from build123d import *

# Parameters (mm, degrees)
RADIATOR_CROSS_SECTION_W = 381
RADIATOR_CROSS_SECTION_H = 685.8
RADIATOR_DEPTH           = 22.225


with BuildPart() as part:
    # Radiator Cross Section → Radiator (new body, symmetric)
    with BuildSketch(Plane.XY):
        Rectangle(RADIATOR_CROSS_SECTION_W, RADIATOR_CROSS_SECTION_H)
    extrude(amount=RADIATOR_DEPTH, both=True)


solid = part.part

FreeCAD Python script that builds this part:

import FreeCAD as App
import Part
import Sketcher
from FreeCAD import Vector
Q = App.Units.Quantity


def add_polygon(sketch, points):
    """Adds a closed chain of lines whose ends are joined by coincident constraints."""
    first, n = sketch.GeometryCount, len(points)
    for a, b in zip(points, points[1:] + points[:1]):
        sketch.addGeometry(Part.LineSegment(App.Vector(*a, 0), App.Vector(*b, 0)), False)
    for i in range(n):
        sketch.addConstraint(Sketcher.Constraint("Coincident", first + i, 2, first + (i + 1) % n, 1))

doc = App.newDocument("Part")
body = doc.addObject("PartDesign::Body", "Body")

# Sketch on XY plane
sketch1 = body.newObject("Sketcher::SketchObject", "Sketch")
sketch1.AttachmentSupport = (doc.getObject("XY_Plane"), [""])
sketch1.MapMode = "FlatFace"
add_polygon(sketch1, [(-190, 343), (-190, -343), (190, -343), (190, 343)])  # lines 0-3
sketch1.addConstraint([
    Sketcher.Constraint("Vertical", 0),
    Sketcher.Constraint("Horizontal", 1),
    Sketcher.Constraint("Vertical", 2),
    Sketcher.Constraint("Horizontal", 3),
    Sketcher.Constraint("Symmetric", 0, 2, 2, 2, -1, 1),
    Sketcher.Constraint("DistanceX", 1, 1, 1, 2, Q("15 in")),
    Sketcher.Constraint("DistanceY", 0, 2, 0, 1, Q("27 in")),
])
pad1 = body.newObject("PartDesign::Pad", "Pad")
pad1.Profile = sketch1
pad1.Length = Q("1.75 in")
pad1.Midplane = True

doc.recompute()
